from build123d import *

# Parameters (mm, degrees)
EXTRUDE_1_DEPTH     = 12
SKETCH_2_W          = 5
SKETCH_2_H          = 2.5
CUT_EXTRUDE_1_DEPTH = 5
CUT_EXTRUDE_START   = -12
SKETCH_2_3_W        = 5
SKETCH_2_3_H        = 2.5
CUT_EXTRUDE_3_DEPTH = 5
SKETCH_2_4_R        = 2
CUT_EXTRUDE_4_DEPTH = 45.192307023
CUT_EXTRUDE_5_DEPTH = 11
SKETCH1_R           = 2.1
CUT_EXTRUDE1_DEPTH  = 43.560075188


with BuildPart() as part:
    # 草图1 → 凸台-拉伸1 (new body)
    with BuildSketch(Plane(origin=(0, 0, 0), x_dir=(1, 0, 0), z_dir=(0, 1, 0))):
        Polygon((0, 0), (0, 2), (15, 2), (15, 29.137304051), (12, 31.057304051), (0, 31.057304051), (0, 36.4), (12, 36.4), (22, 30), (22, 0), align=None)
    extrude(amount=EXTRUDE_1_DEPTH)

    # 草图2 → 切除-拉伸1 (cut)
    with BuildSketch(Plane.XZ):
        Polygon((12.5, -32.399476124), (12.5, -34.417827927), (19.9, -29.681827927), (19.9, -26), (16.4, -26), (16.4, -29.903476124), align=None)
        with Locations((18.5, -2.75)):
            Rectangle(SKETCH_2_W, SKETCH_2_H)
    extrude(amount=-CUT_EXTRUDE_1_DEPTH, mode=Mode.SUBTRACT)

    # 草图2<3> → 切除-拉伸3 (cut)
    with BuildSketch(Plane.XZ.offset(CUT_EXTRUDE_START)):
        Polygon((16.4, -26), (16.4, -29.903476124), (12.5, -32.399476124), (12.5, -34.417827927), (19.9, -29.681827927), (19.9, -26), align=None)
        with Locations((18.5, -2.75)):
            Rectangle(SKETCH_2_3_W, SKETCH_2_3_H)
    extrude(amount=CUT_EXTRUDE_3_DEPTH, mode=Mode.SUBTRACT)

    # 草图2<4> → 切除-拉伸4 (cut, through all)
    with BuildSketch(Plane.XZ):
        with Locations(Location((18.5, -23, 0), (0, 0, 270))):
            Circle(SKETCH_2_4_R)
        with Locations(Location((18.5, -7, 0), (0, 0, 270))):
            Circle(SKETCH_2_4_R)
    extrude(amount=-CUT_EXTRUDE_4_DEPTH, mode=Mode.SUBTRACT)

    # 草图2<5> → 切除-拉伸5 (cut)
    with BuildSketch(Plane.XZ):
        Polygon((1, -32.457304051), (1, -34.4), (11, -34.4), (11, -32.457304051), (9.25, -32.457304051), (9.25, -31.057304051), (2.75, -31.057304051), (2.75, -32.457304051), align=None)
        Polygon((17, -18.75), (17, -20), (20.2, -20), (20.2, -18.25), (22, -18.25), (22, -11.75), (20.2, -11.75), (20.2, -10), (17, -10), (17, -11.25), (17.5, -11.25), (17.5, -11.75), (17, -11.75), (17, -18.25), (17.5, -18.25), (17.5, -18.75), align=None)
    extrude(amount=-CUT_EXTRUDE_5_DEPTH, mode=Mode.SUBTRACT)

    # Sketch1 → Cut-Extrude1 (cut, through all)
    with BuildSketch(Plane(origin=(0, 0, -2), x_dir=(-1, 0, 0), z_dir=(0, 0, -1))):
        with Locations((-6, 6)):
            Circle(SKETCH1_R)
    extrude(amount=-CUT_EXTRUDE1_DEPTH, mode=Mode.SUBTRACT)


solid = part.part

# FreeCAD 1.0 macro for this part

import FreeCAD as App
import Part
import Sketcher
from FreeCAD import Vector

doc = App.newDocument("Part")
body = doc.addObject("PartDesign::Body", "Body")

# Sketch on XZ plane
sketch1 = body.newObject("Sketcher::SketchObject", "Sketch")
sketch1.AttachmentSupport = (doc.getObject("XZ_Plane"), [""])
sketch1.MapMode = "FlatFace"
sketch1.addGeometry([
    Part.LineSegment(Vector(0, -2, 0), Vector(0, 0, 0)),  # 0
    Part.LineSegment(Vector(0, 0, 0), Vector(22, 0, 0)),  # 1
    Part.LineSegment(Vector(22, 0, 0), Vector(22, -30, 0)),  # 2
    Part.LineSegment(Vector(22, -30, 0), Vector(12, -36.4, 0)),  # 3
    Part.LineSegment(Vector(12, -36.4, 0), Vector(0, -36.4, 0)),  # 4
    Part.LineSegment(Vector(0, -36.4, 0), Vector(0, -31.057304, 0)),  # 5
    Part.LineSegment(Vector(0, -31.057304, 0), Vector(12, -31.057304, 0)),  # 6
    Part.LineSegment(Vector(12, -31.057304, 0), Vector(15, -29.137304, 0)),  # 7
    Part.LineSegment(Vector(15, -29.137304, 0), Vector(15, -2, 0)),  # 8
    Part.LineSegment(Vector(15, -2, 0), Vector(0, -2, 0)),  # 9
], False)
sketch1.addConstraint([
    Sketcher.Constraint("Coincident", 0, 2, 1, 1),
    Sketcher.Constraint("Coincident", 1, 2, 2, 1),
    Sketcher.Constraint("Coincident", 2, 2, 3, 1),
    Sketcher.Constraint("Coincident", 3, 2, 4, 1),
    Sketcher.Constraint("Coincident", 4, 2, 5, 1),
    Sketcher.Constraint("Coincident", 5, 2, 6, 1),
    Sketcher.Constraint("Coincident", 6, 2, 7, 1),
    Sketcher.Constraint("Coincident", 7, 2, 8, 1),
    Sketcher.Constraint("Coincident", 8, 2, 9, 1),
    Sketcher.Constraint("Coincident", 9, 2, 0, 1),
    Sketcher.Constraint("Vertical", 0),
    Sketcher.Constraint("Horizontal", 1),
    Sketcher.Constraint("Vertical", 2),
    Sketcher.Constraint("Horizontal", 4),
    Sketcher.Constraint("Vertical", 5),
    Sketcher.Constraint("Horizontal", 6),
    Sketcher.Constraint("Vertical", 8),
    Sketcher.Constraint("Horizontal", 9),
    Sketcher.Constraint("Coincident", 0, 2, -1, 1),
    Sketcher.Constraint("PointOnObject", 4, 2, -2),
    Sketcher.Constraint("Parallel", 3, 7),
    Sketcher.Constraint("Vertical", 3, 2, 6, 2),
    Sketcher.Constraint("DistanceX", 1, 1, 1, 2, 22.0),
    Sketcher.Constraint("DistanceX", 4, 2, 4, 1, 12.0),
    Sketcher.Constraint("DistanceX", 9, 2, 9, 1, 15.0),
    Sketcher.Constraint("DistanceY", 0, 1, 0, 2, 2.0),
    Sketcher.Constraint("DistanceY", 2, 2, 2, 1, 30.0),
    Sketcher.Constraint("DistanceY", 3, 2, -1, 1, 36.4),
    Sketcher.Constraint("DistanceY", 5, 1, 5, 2, 5.342696),
])
pad1 = body.newObject("PartDesign::Pad", "Pad")
pad1.Profile = sketch1
pad1.Length = 12
pad1.Reversed = True

# Sketch on XZ plane
sketch2 = body.newObject("Sketcher::SketchObject", "Sketch001")
sketch2.AttachmentSupport = (doc.getObject("XZ_Plane"), [""])
sketch2.MapMode = "FlatFace"
sketch2.addGeometry([
    Part.LineSegment(Vector(12.5, -32.399476, 0), Vector(12.5, -34.417828, 0)),  # 0
    Part.LineSegment(Vector(12.5, -34.417828, 0), Vector(19.9, -29.681828, 0)),  # 1
    Part.LineSegment(Vector(19.9, -29.681828, 0), Vector(19.9, -26, 0)),  # 2
    Part.LineSegment(Vector(19.9, -26, 0), Vector(16.4, -26, 0)),  # 3
    Part.LineSegment(Vector(16.4, -26, 0), Vector(16.4, -29.903476, 0)),  # 4
    Part.LineSegment(Vector(16.4, -29.903476, 0), Vector(12.5, -32.399476, 0)),  # 5
    Part.LineSegment(Vector(16, -1.5, 0), Vector(16, -4, 0)),  # 6
    Part.LineSegment(Vector(16, -4, 0), Vector(21, -4, 0)),  # 7
    Part.LineSegment(Vector(21, -4, 0), Vector(21, -1.5, 0)),  # 8
    Part.LineSegment(Vector(21, -1.5, 0), Vector(16, -1.5, 0)),  # 9
], False)
sketch2.addConstraint([
    Sketcher.Constraint("Coincident", 0, 2, 1, 1),
    Sketcher.Constraint("Coincident", 1, 2, 2, 1),
    Sketcher.Constraint("Coincident", 2, 2, 3, 1),
    Sketcher.Constraint("Coincident", 3, 2, 4, 1),
    Sketcher.Constraint("Coincident", 4, 2, 5, 1),
    Sketcher.Constraint("Coincident", 5, 2, 0, 1),
    Sketcher.Constraint("Coincident", 6, 2, 7, 1),
    Sketcher.Constraint("Coincident", 7, 2, 8, 1),
    Sketcher.Constraint("Coincident", 8, 2, 9, 1),
    Sketcher.Constraint("Coincident", 9, 2, 6, 1),
    Sketcher.Constraint("Vertical", 0),
    Sketcher.Constraint("Vertical", 2),
    Sketcher.Constraint("Horizontal", 3),
    Sketcher.Constraint("Vertical", 4),
    Sketcher.Constraint("Vertical", 6),
    Sketcher.Constraint("Horizontal", 7),
    Sketcher.Constraint("Vertical", 8),
    Sketcher.Constraint("Horizontal", 9),
    Sketcher.Constraint("Parallel", 1, 5),
    Sketcher.Constraint("DistanceX", 7, 1, 7, 2, 5.0),
    Sketcher.Constraint("DistanceX", 3, 2, 3, 1, 3.5),
    Sketcher.Constraint("DistanceY", 6, 2, 6, 1, 2.5),
    Sketcher.Constraint("DistanceY", 2, 2, -1, 1, 26.0),
    Sketcher.Constraint("DistanceX", -1, 1, 6, 2, 16.0),
    Sketcher.Constraint("DistanceY", 6, 2, -1, 1, 4.0),
    Sketcher.Constraint("DistanceX", -1, 1, 0, 2, 12.5),
    Sketcher.Constraint("DistanceX", -1, 1, 1, 2, 19.9),
    Sketcher.Constraint("DistanceY", 0, 2, 1, 2, 4.736),
    Sketcher.Constraint("DistanceY", 0, 2, 0, 1, 2.018352),
    Sketcher.Constraint("DistanceY", 2, 1, 2, 2, 3.681828),
])
pocket1 = body.newObject("PartDesign::Pocket", "Pocket")
pocket1.Profile = sketch2
pocket1.Length = 5

# Sketch on XZ plane
sketch3 = body.newObject("Sketcher::SketchObject", "Sketch002")
sketch3.AttachmentSupport = (doc.getObject("XZ_Plane"), [""])
sketch3.MapMode = "FlatFace"
sketch3.AttachmentOffset = App.Placement(Vector(0, 0, -12), App.Rotation())
sketch3.addGeometry([
    Part.LineSegment(Vector(16.4, -26, 0), Vector(16.4, -29.903476, 0)),  # 0
    Part.LineSegment(Vector(16.4, -29.903476, 0), Vector(12.5, -32.399476, 0)),  # 1
    Part.LineSegment(Vector(12.5, -32.399476, 0), Vector(12.5, -34.417828, 0)),  # 2
    Part.LineSegment(Vector(12.5, -34.417828, 0), Vector(19.9, -29.681828, 0)),  # 3
    Part.LineSegment(Vector(19.9, -29.681828, 0), Vector(19.9, -26, 0)),  # 4
    Part.LineSegment(Vector(19.9, -26, 0), Vector(16.4, -26, 0)),  # 5
    Part.LineSegment(Vector(16, -1.5, 0), Vector(16, -4, 0)),  # 6
    Part.LineSegment(Vector(16, -4, 0), Vector(21, -4, 0)),  # 7
    Part.LineSegment(Vector(21, -4, 0), Vector(21, -1.5, 0)),  # 8
    Part.LineSegment(Vector(21, -1.5, 0), Vector(16, -1.5, 0)),  # 9
], False)
sketch3.addConstraint([
    Sketcher.Constraint("Coincident", 0, 2, 1, 1),
    Sketcher.Constraint("Coincident", 1, 2, 2, 1),
    Sketcher.Constraint("Coincident", 2, 2, 3, 1),
    Sketcher.Constraint("Coincident", 3, 2, 4, 1),
    Sketcher.Constraint("Coincident", 4, 2, 5, 1),
    Sketcher.Constraint("Coincident", 5, 2, 0, 1),
    Sketcher.Constraint("Coincident", 6, 2, 7, 1),
    Sketcher.Constraint("Coincident", 7, 2, 8, 1),
    Sketcher.Constraint("Coincident", 8, 2, 9, 1),
    Sketcher.Constraint("Coincident", 9, 2, 6, 1),
    Sketcher.Constraint("Vertical", 0),
    Sketcher.Constraint("Vertical", 2),
    Sketcher.Constraint("Vertical", 4),
    Sketcher.Constraint("Horizontal", 5),
    Sketcher.Constraint("Vertical", 6),
    Sketcher.Constraint("Horizontal", 7),
    Sketcher.Constraint("Vertical", 8),
    Sketcher.Constraint("Horizontal", 9),
    Sketcher.Constraint("Parallel", 1, 3),
    Sketcher.Constraint("DistanceX", 7, 1, 7, 2, 5.0),
    Sketcher.Constraint("DistanceX", 5, 2, 5, 1, 3.5),
    Sketcher.Constraint("DistanceY", 6, 2, 6, 1, 2.5),
    Sketcher.Constraint("DistanceY", 4, 2, -1, 1, 26.0),
    Sketcher.Constraint("DistanceX", -1, 1, 6, 2, 16.0),
    Sketcher.Constraint("DistanceY", 6, 2, -1, 1, 4.0),
    Sketcher.Constraint("DistanceX", -1, 1, 0, 2, 16.4),
    Sketcher.Constraint("DistanceX", -1, 1, 1, 2, 12.5),
    Sketcher.Constraint("DistanceY", 1, 2, 0, 2, 2.496),
    Sketcher.Constraint("DistanceY", 2, 2, 2, 1, 2.018352),
    Sketcher.Constraint("DistanceY", 0, 2, 0, 1, 3.903476),
])
pocket2 = body.newObject("PartDesign::Pocket", "Pocket001")
pocket2.Profile = sketch3
pocket2.Length = 5
pocket2.Reversed = True

# Sketch on XZ plane
sketch4 = body.newObject("Sketcher::SketchObject", "Sketch003")
sketch4.AttachmentSupport = (doc.getObject("XZ_Plane"), [""])
sketch4.MapMode = "FlatFace"
sketch4.addGeometry([
    Part.Circle(Vector(18.5, -23, 0), Vector(0, 0, 1), 2),
    Part.Circle(Vector(18.5, -7, 0), Vector(0, 0, 1), 2),
], False)
sketch4.addConstraint([
    Sketcher.Constraint("Equal", 0, 1),
    Sketcher.Constraint("Vertical", 0, 3, 1, 3),
    Sketcher.Constraint("Diameter", 0, 4.0),
    Sketcher.Constraint("DistanceY", 0, 3, -1, 1, 23.0),
    Sketcher.Constraint("DistanceY", 1, 3, -1, 1, 7.0),
    Sketcher.Constraint("DistanceX", -1, 1, 0, 3, 18.5),
])
pocket3 = body.newObject("PartDesign::Pocket", "Pocket002")
pocket3.Profile = sketch4
pocket3.Type = "ThroughAll"

# Sketch on XZ plane
sketch5 = body.newObject("Sketcher::SketchObject", "Sketch004")
sketch5.AttachmentSupport = (doc.getObject("XZ_Plane"), [""])
sketch5.MapMode = "FlatFace"
sketch5.addGeometry([
    Part.LineSegment(Vector(1, -32.457304, 0), Vector(1, -34.4, 0)),  # 0
    Part.LineSegment(Vector(1, -34.4, 0), Vector(11, -34.4, 0)),  # 1
    Part.LineSegment(Vector(11, -34.4, 0), Vector(11, -32.457304, 0)),  # 2
    Part.LineSegment(Vector(11, -32.457304, 0), Vector(9.25, -32.457304, 0)),  # 3
    Part.LineSegment(Vector(9.25, -32.457304, 0), Vector(9.25, -31.057304, 0)),  # 4
    Part.LineSegment(Vector(9.25, -31.057304, 0), Vector(2.75, -31.057304, 0)),  # 5
    Part.LineSegment(Vector(2.75, -31.057304, 0), Vector(2.75, -32.457304, 0)),  # 6
    Part.LineSegment(Vector(2.75, -32.457304, 0), Vector(1, -32.457304, 0)),  # 7
    Part.LineSegment(Vector(17, -18.75, 0), Vector(17, -20, 0)),  # 8
    Part.LineSegment(Vector(17, -20, 0), Vector(20.2, -20, 0)),  # 9
    Part.LineSegment(Vector(20.2, -20, 0), Vector(20.2, -18.25, 0)),  # 10
    Part.LineSegment(Vector(20.2, -18.25, 0), Vector(22, -18.25, 0)),  # 11
    Part.LineSegment(Vector(22, -18.25, 0), Vector(22, -11.75, 0)),  # 12
    Part.LineSegment(Vector(22, -11.75, 0), Vector(20.2, -11.75, 0)),  # 13
    Part.LineSegment(Vector(20.2, -11.75, 0), Vector(20.2, -10, 0)),  # 14
    Part.LineSegment(Vector(20.2, -10, 0), Vector(17, -10, 0)),  # 15
    Part.LineSegment(Vector(17, -10, 0), Vector(17, -11.25, 0)),  # 16
    Part.LineSegment(Vector(17, -11.25, 0), Vector(17.5, -11.25, 0)),  # 17
    Part.LineSegment(Vector(17.5, -11.25, 0), Vector(17.5, -11.75, 0)),  # 18
    Part.LineSegment(Vector(17.5, -11.75, 0), Vector(17, -11.75, 0)),  # 19
    Part.LineSegment(Vector(17, -11.75, 0), Vector(17, -18.25, 0)),  # 20
    Part.LineSegment(Vector(17, -18.25, 0), Vector(17.5, -18.25, 0)),  # 21
    Part.LineSegment(Vector(17.5, -18.25, 0), Vector(17.5, -18.75, 0)),  # 22
    Part.LineSegment(Vector(17.5, -18.75, 0), Vector(17, -18.75, 0)),  # 23
], False)
sketch5.addConstraint([
    Sketcher.Constraint("Coincident", 0, 2, 1, 1),
    Sketcher.Constraint("Coincident", 1, 2, 2, 1),
    Sketcher.Constraint("Coincident", 2, 2, 3, 1),
    Sketcher.Constraint("Coincident", 3, 2, 4, 1),
    Sketcher.Constraint("Coincident", 4, 2, 5, 1),
    Sketcher.Constraint("Coincident", 5, 2, 6, 1),
    Sketcher.Constraint("Coincident", 6, 2, 7, 1),
    Sketcher.Constraint("Coincident", 7, 2, 0, 1),
    Sketcher.Constraint("Coincident", 8, 2, 9, 1),
    Sketcher.Constraint("Coincident", 9, 2, 10, 1),
    Sketcher.Constraint("Coincident", 10, 2, 11, 1),
    Sketcher.Constraint("Coincident", 11, 2, 12, 1),
    Sketcher.Constraint("Coincident", 12, 2, 13, 1),
    Sketcher.Constraint("Coincident", 13, 2, 14, 1),
    Sketcher.Constraint("Coincident", 14, 2, 15, 1),
    Sketcher.Constraint("Coincident", 15, 2, 16, 1),
    Sketcher.Constraint("Coincident", 16, 2, 17, 1),
    Sketcher.Constraint("Coincident", 17, 2, 18, 1),
    Sketcher.Constraint("Coincident", 18, 2, 19, 1),
    Sketcher.Constraint("Coincident", 19, 2, 20, 1),
    Sketcher.Constraint("Coincident", 20, 2, 21, 1),
    Sketcher.Constraint("Coincident", 21, 2, 22, 1),
    Sketcher.Constraint("Coincident", 22, 2, 23, 1),
    Sketcher.Constraint("Coincident", 23, 2, 8, 1),
    Sketcher.Constraint("Vertical", 0),
    Sketcher.Constraint("Horizontal", 1),
    Sketcher.Constraint("Vertical", 2),
    Sketcher.Constraint("Horizontal", 3),
    Sketcher.Constraint("Vertical", 4),
    Sketcher.Constraint("Horizontal", 5),
    Sketcher.Constraint("Vertical", 6),
    Sketcher.Constraint("Horizontal", 7),
    Sketcher.Constraint("Vertical", 8),
    Sketcher.Constraint("Horizontal", 9),
    Sketcher.Constraint("Vertical", 10),
    Sketcher.Constraint("Horizontal", 11),
    Sketcher.Constraint("Vertical", 12),
    Sketcher.Constraint("Horizontal", 13),
    Sketcher.Constraint("Vertical", 14),
    Sketcher.Constraint("Horizontal", 15),
    Sketcher.Constraint("Vertical", 16),
    Sketcher.Constraint("Horizontal", 17),
    Sketcher.Constraint("Vertical", 18),
    Sketcher.Constraint("Horizontal", 19),
    Sketcher.Constraint("Vertical", 20),
    Sketcher.Constraint("Horizontal", 21),
    Sketcher.Constraint("Vertical", 22),
    Sketcher.Constraint("Horizontal", 23),
    Sketcher.Constraint("Horizontal", 3, 2, 6, 2),
    Sketcher.Constraint("Horizontal", 13, 2, 18, 2),
    Sketcher.Constraint("Horizontal", 11, 2, 20, 2),
    Sketcher.Constraint("Vertical", 10, 2, 13, 2),
    Sketcher.Constraint("Vertical", 8, 2, 15, 2),
    Sketcher.Constraint("Vertical", 16, 2, 19, 2),
    Sketcher.Constraint("Vertical", 18, 2, 21, 2),
    Sketcher.Constraint("Equal", 3, 7),
    Sketcher.Constraint("Equal", 7, 10),
    Sketcher.Constraint("Equal", 5, 12),
    Sketcher.Constraint("Equal", 10, 14),
    Sketcher.Constraint("Equal", 8, 16),
    Sketcher.Constraint("Equal", 23, 18),
    Sketcher.Constraint("DistanceX", 1, 1, 1, 2, 10.0),
    Sketcher.Constraint("DistanceX", 5, 2, 5, 1, 6.5),
    Sketcher.Constraint("DistanceX", 9, 1, 9, 2, 3.2),
    Sketcher.Constraint("DistanceX", 11, 1, 11, 2, 1.8),
    Sketcher.Constraint("DistanceX", 17, 1, 17, 2, 0.5),
    Sketcher.Constraint("DistanceY", 4, 1, 4, 2, 1.4),
    Sketcher.Constraint("DistanceX", -1, 1, 0, 2, 1.0),
    Sketcher.Constraint("DistanceX", -1, 1, 8, 2, 17.0),
    Sketcher.Constraint("DistanceY", 8, 2, -1, 1, 20.0),
    Sketcher.Constraint("DistanceY", 0, 2, -1, 1, 34.4),
    Sketcher.Constraint("DistanceY", 0, 2, 0, 1, 1.942696),
])
pocket4 = body.newObject("PartDesign::Pocket", "Pocket003")
pocket4.Profile = sketch5
pocket4.Length = 11

# Sketch on XY plane
sketch6 = body.newObject("Sketcher::SketchObject", "Sketch005")
sketch6.AttachmentSupport = (doc.getObject("XY_Plane"), [""])
sketch6.MapMode = "FlatFace"
sketch6.AttachmentOffset = App.Placement(Vector(0, 0, -2), App.Rotation())
sketch6.addGeometry(Part.Circle(Vector(6, 6, 0), Vector(0, 0, 1), 2.1), False)
sketch6.addConstraint([
    Sketcher.Constraint("Diameter", 0, 4.2),
    Sketcher.Constraint("DistanceX", -1, 1, 0, 3, 6.0),
    Sketcher.Constraint("DistanceY", -1, 1, 0, 3, 6.0),
])
pocket5 = body.newObject("PartDesign::Pocket", "Pocket004")
pocket5.Profile = sketch6
pocket5.Type = "ThroughAll"
pocket5.Reversed = True

doc.recompute()
